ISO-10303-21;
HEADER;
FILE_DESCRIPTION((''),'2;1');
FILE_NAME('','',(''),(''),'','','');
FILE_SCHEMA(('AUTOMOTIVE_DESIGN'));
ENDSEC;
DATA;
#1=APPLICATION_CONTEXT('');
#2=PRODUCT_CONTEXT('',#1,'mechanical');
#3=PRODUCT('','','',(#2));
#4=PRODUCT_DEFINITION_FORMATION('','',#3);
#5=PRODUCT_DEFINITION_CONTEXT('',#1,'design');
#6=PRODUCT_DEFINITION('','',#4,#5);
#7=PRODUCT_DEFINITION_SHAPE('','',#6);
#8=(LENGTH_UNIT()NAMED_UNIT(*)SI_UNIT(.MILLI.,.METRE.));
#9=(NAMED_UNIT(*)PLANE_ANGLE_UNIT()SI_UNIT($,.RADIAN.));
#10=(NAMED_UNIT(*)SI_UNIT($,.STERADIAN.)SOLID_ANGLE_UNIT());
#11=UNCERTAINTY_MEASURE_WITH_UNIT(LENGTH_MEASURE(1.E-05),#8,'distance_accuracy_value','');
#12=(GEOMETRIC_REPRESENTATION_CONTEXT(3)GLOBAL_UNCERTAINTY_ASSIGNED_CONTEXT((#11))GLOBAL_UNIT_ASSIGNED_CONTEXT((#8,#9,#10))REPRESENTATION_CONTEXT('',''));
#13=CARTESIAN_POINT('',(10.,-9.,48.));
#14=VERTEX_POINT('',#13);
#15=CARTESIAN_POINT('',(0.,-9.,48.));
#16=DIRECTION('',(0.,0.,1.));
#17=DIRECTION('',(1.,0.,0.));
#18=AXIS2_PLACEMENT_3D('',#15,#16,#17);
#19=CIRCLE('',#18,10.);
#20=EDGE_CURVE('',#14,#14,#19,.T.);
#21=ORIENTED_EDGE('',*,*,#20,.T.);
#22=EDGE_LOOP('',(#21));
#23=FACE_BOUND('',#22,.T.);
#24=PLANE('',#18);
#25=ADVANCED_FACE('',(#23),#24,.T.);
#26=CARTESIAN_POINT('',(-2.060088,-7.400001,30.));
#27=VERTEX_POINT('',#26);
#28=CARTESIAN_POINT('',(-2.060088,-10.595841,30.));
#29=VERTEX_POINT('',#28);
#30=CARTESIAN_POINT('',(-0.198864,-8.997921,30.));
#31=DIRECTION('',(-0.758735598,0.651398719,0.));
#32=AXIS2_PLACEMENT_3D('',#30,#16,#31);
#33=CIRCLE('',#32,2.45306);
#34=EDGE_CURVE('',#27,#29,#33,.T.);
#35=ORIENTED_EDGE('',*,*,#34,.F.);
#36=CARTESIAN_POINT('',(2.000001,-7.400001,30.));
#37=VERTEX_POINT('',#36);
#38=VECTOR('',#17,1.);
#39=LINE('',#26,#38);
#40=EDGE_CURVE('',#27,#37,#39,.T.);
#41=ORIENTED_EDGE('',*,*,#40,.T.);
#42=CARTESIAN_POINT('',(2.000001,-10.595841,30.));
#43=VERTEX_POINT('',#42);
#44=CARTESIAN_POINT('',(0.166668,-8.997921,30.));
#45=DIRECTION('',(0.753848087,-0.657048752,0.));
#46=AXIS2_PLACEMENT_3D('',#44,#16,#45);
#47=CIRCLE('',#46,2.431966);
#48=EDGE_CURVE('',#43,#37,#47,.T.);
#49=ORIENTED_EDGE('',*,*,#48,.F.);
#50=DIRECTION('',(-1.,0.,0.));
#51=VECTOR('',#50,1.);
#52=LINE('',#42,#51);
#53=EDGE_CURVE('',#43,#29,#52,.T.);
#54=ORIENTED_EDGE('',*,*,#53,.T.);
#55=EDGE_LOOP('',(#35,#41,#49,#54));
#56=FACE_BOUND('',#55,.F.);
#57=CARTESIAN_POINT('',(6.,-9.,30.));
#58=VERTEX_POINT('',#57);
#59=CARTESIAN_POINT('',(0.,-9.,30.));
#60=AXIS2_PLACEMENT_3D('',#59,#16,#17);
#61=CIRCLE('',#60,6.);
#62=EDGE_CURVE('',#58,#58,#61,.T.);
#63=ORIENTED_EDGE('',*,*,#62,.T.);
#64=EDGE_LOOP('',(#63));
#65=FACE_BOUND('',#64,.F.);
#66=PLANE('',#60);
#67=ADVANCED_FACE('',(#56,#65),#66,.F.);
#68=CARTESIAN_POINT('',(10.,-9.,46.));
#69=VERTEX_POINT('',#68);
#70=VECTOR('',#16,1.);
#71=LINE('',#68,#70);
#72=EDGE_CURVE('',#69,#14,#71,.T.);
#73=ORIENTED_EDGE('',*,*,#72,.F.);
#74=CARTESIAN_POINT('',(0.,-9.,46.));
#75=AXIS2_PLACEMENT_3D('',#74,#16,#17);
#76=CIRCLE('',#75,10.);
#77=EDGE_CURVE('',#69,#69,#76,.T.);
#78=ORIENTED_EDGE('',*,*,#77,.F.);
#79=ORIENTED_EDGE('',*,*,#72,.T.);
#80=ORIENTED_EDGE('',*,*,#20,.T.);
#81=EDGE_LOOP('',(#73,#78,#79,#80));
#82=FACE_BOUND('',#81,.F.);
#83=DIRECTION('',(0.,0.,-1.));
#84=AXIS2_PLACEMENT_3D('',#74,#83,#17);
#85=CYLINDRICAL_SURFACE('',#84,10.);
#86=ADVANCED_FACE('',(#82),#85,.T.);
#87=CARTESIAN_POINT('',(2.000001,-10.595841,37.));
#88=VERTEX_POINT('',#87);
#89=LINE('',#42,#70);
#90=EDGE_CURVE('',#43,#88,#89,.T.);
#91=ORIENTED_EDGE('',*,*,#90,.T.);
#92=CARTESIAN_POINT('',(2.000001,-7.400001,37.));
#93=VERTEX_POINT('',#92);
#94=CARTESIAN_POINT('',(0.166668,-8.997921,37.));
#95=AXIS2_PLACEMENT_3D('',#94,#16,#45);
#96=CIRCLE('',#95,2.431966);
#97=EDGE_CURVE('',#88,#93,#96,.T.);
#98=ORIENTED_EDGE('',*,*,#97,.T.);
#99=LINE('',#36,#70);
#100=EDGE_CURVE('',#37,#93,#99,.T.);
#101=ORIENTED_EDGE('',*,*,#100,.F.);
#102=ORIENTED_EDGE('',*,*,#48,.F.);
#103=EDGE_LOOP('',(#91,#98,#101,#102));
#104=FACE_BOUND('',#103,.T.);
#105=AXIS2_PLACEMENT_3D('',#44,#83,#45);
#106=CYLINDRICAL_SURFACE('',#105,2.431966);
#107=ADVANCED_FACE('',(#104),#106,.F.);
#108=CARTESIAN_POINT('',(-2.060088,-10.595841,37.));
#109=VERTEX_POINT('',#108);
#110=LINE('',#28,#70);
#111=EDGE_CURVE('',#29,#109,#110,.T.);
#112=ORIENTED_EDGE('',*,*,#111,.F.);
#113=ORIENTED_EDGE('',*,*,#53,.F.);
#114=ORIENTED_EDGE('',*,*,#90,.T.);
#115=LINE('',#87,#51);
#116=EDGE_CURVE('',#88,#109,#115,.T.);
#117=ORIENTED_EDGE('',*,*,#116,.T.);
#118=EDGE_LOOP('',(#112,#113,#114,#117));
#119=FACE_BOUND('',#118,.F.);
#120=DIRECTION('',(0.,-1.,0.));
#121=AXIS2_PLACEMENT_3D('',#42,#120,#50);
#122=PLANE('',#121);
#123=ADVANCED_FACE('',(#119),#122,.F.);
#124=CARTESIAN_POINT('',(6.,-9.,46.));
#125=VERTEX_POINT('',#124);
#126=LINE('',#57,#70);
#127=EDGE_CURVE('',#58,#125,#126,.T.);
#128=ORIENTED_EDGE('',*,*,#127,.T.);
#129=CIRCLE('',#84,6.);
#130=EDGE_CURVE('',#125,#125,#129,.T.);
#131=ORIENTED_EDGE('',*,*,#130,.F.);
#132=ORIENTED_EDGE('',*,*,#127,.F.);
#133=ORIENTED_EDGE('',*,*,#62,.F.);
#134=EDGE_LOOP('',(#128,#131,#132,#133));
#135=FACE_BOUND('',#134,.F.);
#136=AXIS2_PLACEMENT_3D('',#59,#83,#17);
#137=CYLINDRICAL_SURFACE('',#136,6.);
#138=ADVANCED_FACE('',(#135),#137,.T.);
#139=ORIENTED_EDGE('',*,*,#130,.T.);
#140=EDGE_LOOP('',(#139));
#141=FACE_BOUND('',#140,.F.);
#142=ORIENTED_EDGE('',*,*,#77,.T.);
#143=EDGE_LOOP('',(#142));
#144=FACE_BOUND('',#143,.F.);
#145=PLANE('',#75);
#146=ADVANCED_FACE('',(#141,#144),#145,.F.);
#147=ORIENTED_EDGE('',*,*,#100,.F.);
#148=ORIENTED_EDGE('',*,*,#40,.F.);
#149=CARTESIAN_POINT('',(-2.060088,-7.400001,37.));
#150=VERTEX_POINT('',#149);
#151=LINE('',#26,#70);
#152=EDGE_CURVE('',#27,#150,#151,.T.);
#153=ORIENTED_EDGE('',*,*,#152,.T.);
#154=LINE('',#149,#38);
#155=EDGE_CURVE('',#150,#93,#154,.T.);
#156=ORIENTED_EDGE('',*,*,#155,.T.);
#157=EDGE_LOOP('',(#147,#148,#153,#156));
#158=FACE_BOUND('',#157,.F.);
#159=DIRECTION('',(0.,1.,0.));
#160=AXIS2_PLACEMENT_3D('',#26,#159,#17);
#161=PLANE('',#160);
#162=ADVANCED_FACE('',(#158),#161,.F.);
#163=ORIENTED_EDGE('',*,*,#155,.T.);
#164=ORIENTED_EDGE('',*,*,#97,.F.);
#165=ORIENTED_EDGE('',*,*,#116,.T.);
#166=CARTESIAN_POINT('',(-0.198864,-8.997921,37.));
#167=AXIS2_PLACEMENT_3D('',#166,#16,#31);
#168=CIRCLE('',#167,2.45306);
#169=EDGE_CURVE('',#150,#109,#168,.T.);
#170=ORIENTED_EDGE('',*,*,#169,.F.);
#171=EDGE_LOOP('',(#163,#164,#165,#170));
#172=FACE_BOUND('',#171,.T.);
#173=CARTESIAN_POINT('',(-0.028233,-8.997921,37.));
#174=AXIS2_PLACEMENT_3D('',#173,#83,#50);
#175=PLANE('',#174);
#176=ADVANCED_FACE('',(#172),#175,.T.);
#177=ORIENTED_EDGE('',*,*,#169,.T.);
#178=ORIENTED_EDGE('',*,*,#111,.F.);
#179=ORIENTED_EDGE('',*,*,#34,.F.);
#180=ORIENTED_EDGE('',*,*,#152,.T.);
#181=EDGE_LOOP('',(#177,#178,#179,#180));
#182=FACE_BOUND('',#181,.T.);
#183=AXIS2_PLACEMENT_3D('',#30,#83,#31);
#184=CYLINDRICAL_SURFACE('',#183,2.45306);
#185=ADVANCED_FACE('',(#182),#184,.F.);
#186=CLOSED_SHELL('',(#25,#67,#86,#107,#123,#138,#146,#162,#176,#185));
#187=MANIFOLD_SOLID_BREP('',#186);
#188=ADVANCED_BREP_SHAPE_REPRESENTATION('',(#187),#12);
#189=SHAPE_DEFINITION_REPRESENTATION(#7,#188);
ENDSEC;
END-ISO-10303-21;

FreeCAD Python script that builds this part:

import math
import FreeCAD as App
import Part
import Sketcher

doc = App.newDocument("Part")
body = doc.addObject("PartDesign::Body", "Body")

# Sketch on XY plane
sketch1 = doc.addObject("Sketcher::SketchObject", "Sketch")
body.addObject(sketch1)
sketch1.AttachmentSupport = (doc.XY_Plane, [""])
sketch1.MapMode = "FlatFace"
sketch1.addGeometry([
    Part.LineSegment(App.Vector(2, 8.6, 0), App.Vector(-2.1, 8.6, 0)),
    Part.ArcOfCircle(Part.Circle(App.Vector(-0.2, 7, 0), App.Vector(0, 0, 1), 2.5), math.radians(139), math.radians(221)),
    Part.LineSegment(App.Vector(-2.1, 5.4, 0), App.Vector(2, 5.4, 0)),
    Part.ArcOfCircle(Part.Circle(App.Vector(0.2, 7, 0), App.Vector(0, 0, 1), 2.4), math.radians(-41), math.radians(41)),
], False)
sketch1.addConstraint([
    Sketcher.Constraint("Coincident", 0, 2, 1, 1),
    Sketcher.Constraint("Coincident", 1, 2, 2, 1),
    Sketcher.Constraint("Coincident", 2, 2, 3, 1),
    Sketcher.Constraint("Coincident", 3, 2, 0, 1),
    Sketcher.Constraint("Horizontal", 0),
    Sketcher.Constraint("Horizontal", 2),
    Sketcher.Constraint("Horizontal", 1, 3, 3, 3),
    Sketcher.Constraint("Vertical", 0, 2, 1, 2),
    Sketcher.Constraint("DistanceX", -1, 1, 2, 2, 2.000001),
    Sketcher.Constraint("DistanceY", -1, 1, 0, 2, 8.599999),
    Sketcher.Constraint("Radius", 1, 2.45306),
    Sketcher.Constraint("Radius", 3, 2.431966),
    Sketcher.Constraint("DistanceX", 0, 2, 0, 1, 4.060089),
    Sketcher.Constraint("DistanceY", -1, 1, 1, 3, 7.002079),
])
pad1 = doc.addObject("PartDesign::Pad", "Pad")
body.addObject(pad1)
pad1.Profile = sketch1
pad1.Length = 7
body2 = doc.addObject("PartDesign::Body", "Body001")
doc.recompute()

body.Placement = App.Placement(App.Vector(-1, 18, 24), App.Rotation(App.Vector(0, 0, 1), 0))
boolean = doc.addObject("PartDesign::Boolean", "Boolean")
body2.addObject(boolean)
boolean.Type = "Fuse"
boolean.addObjects([body])
body3 = doc.addObject("PartDesign::Body", "Body002")

# Sketch on XY plane
sketch2 = doc.addObject("Sketcher::SketchObject", "Sketch001")
body3.addObject(sketch2)
sketch2.AttachmentSupport = (doc.getObject("XY_Plane002"), [""])
sketch2.MapMode = "FlatFace"
sketch2.AttachmentOffset = App.Placement(App.Vector(0, 0, 24), App.Rotation())
sketch2.addGeometry(Part.Circle(App.Vector(-1, 25, 0), App.Vector(0, 0, 1), 6), False)
sketch2.addConstraint([
    Sketcher.Constraint("Diameter", 0, 12.0),
    Sketcher.Constraint("DistanceX", 0, 3, -1, 1, 1.0),
    Sketcher.Constraint("DistanceY", -1, 1, 0, 3, 25.0),
])
pad2 = doc.addObject("PartDesign::Pad", "Pad001")
body3.addObject(pad2)
pad2.Profile = sketch2
pad2.Length = 17
doc.recompute()

boolean2 = doc.addObject("PartDesign::Boolean", "Boolean001")
body3.addObject(boolean2)
boolean2.Type = "Cut"
boolean2.addObjects([body2])
body4 = doc.addObject("PartDesign::Body", "Body003")

# Sketch on XY plane
sketch3 = doc.addObject("Sketcher::SketchObject", "Sketch002")
body4.addObject(sketch3)
sketch3.AttachmentSupport = (doc.getObject("XY_Plane003"), [""])
sketch3.MapMode = "FlatFace"
sketch3.AttachmentOffset = App.Placement(App.Vector(0, 0, 40), App.Rotation())
sketch3.addGeometry(Part.Circle(App.Vector(-1, 25, 0), App.Vector(0, 0, 1), 10), False)
sketch3.addConstraint([
    Sketcher.Constraint("Diameter", 0, 20.0),
    Sketcher.Constraint("DistanceX", 0, 3, -1, 1, 1.0),
    Sketcher.Constraint("DistanceY", -1, 1, 0, 3, 25.0),
])
pad3 = doc.addObject("PartDesign::Pad", "Pad002")
body4.addObject(pad3)
pad3.Profile = sketch3
pad3.Length = 2
doc.recompute()

boolean3 = doc.addObject("PartDesign::Boolean", "Boolean002")
body4.addObject(boolean3)
boolean3.Type = "Fuse"
boolean3.addObjects([body3])
body5 = doc.addObject("PartDesign::Body", "Body004")
doc.recompute()

body4.Placement = App.Placement(App.Vector(1, -34, 6), App.Rotation(App.Vector(0, 0, 1), 0))
boolean4 = doc.addObject("PartDesign::Boolean", "Boolean003")
body5.addObject(boolean4)
boolean4.Type = "Fuse"
boolean4.addObjects([body4])

doc.recompute()
